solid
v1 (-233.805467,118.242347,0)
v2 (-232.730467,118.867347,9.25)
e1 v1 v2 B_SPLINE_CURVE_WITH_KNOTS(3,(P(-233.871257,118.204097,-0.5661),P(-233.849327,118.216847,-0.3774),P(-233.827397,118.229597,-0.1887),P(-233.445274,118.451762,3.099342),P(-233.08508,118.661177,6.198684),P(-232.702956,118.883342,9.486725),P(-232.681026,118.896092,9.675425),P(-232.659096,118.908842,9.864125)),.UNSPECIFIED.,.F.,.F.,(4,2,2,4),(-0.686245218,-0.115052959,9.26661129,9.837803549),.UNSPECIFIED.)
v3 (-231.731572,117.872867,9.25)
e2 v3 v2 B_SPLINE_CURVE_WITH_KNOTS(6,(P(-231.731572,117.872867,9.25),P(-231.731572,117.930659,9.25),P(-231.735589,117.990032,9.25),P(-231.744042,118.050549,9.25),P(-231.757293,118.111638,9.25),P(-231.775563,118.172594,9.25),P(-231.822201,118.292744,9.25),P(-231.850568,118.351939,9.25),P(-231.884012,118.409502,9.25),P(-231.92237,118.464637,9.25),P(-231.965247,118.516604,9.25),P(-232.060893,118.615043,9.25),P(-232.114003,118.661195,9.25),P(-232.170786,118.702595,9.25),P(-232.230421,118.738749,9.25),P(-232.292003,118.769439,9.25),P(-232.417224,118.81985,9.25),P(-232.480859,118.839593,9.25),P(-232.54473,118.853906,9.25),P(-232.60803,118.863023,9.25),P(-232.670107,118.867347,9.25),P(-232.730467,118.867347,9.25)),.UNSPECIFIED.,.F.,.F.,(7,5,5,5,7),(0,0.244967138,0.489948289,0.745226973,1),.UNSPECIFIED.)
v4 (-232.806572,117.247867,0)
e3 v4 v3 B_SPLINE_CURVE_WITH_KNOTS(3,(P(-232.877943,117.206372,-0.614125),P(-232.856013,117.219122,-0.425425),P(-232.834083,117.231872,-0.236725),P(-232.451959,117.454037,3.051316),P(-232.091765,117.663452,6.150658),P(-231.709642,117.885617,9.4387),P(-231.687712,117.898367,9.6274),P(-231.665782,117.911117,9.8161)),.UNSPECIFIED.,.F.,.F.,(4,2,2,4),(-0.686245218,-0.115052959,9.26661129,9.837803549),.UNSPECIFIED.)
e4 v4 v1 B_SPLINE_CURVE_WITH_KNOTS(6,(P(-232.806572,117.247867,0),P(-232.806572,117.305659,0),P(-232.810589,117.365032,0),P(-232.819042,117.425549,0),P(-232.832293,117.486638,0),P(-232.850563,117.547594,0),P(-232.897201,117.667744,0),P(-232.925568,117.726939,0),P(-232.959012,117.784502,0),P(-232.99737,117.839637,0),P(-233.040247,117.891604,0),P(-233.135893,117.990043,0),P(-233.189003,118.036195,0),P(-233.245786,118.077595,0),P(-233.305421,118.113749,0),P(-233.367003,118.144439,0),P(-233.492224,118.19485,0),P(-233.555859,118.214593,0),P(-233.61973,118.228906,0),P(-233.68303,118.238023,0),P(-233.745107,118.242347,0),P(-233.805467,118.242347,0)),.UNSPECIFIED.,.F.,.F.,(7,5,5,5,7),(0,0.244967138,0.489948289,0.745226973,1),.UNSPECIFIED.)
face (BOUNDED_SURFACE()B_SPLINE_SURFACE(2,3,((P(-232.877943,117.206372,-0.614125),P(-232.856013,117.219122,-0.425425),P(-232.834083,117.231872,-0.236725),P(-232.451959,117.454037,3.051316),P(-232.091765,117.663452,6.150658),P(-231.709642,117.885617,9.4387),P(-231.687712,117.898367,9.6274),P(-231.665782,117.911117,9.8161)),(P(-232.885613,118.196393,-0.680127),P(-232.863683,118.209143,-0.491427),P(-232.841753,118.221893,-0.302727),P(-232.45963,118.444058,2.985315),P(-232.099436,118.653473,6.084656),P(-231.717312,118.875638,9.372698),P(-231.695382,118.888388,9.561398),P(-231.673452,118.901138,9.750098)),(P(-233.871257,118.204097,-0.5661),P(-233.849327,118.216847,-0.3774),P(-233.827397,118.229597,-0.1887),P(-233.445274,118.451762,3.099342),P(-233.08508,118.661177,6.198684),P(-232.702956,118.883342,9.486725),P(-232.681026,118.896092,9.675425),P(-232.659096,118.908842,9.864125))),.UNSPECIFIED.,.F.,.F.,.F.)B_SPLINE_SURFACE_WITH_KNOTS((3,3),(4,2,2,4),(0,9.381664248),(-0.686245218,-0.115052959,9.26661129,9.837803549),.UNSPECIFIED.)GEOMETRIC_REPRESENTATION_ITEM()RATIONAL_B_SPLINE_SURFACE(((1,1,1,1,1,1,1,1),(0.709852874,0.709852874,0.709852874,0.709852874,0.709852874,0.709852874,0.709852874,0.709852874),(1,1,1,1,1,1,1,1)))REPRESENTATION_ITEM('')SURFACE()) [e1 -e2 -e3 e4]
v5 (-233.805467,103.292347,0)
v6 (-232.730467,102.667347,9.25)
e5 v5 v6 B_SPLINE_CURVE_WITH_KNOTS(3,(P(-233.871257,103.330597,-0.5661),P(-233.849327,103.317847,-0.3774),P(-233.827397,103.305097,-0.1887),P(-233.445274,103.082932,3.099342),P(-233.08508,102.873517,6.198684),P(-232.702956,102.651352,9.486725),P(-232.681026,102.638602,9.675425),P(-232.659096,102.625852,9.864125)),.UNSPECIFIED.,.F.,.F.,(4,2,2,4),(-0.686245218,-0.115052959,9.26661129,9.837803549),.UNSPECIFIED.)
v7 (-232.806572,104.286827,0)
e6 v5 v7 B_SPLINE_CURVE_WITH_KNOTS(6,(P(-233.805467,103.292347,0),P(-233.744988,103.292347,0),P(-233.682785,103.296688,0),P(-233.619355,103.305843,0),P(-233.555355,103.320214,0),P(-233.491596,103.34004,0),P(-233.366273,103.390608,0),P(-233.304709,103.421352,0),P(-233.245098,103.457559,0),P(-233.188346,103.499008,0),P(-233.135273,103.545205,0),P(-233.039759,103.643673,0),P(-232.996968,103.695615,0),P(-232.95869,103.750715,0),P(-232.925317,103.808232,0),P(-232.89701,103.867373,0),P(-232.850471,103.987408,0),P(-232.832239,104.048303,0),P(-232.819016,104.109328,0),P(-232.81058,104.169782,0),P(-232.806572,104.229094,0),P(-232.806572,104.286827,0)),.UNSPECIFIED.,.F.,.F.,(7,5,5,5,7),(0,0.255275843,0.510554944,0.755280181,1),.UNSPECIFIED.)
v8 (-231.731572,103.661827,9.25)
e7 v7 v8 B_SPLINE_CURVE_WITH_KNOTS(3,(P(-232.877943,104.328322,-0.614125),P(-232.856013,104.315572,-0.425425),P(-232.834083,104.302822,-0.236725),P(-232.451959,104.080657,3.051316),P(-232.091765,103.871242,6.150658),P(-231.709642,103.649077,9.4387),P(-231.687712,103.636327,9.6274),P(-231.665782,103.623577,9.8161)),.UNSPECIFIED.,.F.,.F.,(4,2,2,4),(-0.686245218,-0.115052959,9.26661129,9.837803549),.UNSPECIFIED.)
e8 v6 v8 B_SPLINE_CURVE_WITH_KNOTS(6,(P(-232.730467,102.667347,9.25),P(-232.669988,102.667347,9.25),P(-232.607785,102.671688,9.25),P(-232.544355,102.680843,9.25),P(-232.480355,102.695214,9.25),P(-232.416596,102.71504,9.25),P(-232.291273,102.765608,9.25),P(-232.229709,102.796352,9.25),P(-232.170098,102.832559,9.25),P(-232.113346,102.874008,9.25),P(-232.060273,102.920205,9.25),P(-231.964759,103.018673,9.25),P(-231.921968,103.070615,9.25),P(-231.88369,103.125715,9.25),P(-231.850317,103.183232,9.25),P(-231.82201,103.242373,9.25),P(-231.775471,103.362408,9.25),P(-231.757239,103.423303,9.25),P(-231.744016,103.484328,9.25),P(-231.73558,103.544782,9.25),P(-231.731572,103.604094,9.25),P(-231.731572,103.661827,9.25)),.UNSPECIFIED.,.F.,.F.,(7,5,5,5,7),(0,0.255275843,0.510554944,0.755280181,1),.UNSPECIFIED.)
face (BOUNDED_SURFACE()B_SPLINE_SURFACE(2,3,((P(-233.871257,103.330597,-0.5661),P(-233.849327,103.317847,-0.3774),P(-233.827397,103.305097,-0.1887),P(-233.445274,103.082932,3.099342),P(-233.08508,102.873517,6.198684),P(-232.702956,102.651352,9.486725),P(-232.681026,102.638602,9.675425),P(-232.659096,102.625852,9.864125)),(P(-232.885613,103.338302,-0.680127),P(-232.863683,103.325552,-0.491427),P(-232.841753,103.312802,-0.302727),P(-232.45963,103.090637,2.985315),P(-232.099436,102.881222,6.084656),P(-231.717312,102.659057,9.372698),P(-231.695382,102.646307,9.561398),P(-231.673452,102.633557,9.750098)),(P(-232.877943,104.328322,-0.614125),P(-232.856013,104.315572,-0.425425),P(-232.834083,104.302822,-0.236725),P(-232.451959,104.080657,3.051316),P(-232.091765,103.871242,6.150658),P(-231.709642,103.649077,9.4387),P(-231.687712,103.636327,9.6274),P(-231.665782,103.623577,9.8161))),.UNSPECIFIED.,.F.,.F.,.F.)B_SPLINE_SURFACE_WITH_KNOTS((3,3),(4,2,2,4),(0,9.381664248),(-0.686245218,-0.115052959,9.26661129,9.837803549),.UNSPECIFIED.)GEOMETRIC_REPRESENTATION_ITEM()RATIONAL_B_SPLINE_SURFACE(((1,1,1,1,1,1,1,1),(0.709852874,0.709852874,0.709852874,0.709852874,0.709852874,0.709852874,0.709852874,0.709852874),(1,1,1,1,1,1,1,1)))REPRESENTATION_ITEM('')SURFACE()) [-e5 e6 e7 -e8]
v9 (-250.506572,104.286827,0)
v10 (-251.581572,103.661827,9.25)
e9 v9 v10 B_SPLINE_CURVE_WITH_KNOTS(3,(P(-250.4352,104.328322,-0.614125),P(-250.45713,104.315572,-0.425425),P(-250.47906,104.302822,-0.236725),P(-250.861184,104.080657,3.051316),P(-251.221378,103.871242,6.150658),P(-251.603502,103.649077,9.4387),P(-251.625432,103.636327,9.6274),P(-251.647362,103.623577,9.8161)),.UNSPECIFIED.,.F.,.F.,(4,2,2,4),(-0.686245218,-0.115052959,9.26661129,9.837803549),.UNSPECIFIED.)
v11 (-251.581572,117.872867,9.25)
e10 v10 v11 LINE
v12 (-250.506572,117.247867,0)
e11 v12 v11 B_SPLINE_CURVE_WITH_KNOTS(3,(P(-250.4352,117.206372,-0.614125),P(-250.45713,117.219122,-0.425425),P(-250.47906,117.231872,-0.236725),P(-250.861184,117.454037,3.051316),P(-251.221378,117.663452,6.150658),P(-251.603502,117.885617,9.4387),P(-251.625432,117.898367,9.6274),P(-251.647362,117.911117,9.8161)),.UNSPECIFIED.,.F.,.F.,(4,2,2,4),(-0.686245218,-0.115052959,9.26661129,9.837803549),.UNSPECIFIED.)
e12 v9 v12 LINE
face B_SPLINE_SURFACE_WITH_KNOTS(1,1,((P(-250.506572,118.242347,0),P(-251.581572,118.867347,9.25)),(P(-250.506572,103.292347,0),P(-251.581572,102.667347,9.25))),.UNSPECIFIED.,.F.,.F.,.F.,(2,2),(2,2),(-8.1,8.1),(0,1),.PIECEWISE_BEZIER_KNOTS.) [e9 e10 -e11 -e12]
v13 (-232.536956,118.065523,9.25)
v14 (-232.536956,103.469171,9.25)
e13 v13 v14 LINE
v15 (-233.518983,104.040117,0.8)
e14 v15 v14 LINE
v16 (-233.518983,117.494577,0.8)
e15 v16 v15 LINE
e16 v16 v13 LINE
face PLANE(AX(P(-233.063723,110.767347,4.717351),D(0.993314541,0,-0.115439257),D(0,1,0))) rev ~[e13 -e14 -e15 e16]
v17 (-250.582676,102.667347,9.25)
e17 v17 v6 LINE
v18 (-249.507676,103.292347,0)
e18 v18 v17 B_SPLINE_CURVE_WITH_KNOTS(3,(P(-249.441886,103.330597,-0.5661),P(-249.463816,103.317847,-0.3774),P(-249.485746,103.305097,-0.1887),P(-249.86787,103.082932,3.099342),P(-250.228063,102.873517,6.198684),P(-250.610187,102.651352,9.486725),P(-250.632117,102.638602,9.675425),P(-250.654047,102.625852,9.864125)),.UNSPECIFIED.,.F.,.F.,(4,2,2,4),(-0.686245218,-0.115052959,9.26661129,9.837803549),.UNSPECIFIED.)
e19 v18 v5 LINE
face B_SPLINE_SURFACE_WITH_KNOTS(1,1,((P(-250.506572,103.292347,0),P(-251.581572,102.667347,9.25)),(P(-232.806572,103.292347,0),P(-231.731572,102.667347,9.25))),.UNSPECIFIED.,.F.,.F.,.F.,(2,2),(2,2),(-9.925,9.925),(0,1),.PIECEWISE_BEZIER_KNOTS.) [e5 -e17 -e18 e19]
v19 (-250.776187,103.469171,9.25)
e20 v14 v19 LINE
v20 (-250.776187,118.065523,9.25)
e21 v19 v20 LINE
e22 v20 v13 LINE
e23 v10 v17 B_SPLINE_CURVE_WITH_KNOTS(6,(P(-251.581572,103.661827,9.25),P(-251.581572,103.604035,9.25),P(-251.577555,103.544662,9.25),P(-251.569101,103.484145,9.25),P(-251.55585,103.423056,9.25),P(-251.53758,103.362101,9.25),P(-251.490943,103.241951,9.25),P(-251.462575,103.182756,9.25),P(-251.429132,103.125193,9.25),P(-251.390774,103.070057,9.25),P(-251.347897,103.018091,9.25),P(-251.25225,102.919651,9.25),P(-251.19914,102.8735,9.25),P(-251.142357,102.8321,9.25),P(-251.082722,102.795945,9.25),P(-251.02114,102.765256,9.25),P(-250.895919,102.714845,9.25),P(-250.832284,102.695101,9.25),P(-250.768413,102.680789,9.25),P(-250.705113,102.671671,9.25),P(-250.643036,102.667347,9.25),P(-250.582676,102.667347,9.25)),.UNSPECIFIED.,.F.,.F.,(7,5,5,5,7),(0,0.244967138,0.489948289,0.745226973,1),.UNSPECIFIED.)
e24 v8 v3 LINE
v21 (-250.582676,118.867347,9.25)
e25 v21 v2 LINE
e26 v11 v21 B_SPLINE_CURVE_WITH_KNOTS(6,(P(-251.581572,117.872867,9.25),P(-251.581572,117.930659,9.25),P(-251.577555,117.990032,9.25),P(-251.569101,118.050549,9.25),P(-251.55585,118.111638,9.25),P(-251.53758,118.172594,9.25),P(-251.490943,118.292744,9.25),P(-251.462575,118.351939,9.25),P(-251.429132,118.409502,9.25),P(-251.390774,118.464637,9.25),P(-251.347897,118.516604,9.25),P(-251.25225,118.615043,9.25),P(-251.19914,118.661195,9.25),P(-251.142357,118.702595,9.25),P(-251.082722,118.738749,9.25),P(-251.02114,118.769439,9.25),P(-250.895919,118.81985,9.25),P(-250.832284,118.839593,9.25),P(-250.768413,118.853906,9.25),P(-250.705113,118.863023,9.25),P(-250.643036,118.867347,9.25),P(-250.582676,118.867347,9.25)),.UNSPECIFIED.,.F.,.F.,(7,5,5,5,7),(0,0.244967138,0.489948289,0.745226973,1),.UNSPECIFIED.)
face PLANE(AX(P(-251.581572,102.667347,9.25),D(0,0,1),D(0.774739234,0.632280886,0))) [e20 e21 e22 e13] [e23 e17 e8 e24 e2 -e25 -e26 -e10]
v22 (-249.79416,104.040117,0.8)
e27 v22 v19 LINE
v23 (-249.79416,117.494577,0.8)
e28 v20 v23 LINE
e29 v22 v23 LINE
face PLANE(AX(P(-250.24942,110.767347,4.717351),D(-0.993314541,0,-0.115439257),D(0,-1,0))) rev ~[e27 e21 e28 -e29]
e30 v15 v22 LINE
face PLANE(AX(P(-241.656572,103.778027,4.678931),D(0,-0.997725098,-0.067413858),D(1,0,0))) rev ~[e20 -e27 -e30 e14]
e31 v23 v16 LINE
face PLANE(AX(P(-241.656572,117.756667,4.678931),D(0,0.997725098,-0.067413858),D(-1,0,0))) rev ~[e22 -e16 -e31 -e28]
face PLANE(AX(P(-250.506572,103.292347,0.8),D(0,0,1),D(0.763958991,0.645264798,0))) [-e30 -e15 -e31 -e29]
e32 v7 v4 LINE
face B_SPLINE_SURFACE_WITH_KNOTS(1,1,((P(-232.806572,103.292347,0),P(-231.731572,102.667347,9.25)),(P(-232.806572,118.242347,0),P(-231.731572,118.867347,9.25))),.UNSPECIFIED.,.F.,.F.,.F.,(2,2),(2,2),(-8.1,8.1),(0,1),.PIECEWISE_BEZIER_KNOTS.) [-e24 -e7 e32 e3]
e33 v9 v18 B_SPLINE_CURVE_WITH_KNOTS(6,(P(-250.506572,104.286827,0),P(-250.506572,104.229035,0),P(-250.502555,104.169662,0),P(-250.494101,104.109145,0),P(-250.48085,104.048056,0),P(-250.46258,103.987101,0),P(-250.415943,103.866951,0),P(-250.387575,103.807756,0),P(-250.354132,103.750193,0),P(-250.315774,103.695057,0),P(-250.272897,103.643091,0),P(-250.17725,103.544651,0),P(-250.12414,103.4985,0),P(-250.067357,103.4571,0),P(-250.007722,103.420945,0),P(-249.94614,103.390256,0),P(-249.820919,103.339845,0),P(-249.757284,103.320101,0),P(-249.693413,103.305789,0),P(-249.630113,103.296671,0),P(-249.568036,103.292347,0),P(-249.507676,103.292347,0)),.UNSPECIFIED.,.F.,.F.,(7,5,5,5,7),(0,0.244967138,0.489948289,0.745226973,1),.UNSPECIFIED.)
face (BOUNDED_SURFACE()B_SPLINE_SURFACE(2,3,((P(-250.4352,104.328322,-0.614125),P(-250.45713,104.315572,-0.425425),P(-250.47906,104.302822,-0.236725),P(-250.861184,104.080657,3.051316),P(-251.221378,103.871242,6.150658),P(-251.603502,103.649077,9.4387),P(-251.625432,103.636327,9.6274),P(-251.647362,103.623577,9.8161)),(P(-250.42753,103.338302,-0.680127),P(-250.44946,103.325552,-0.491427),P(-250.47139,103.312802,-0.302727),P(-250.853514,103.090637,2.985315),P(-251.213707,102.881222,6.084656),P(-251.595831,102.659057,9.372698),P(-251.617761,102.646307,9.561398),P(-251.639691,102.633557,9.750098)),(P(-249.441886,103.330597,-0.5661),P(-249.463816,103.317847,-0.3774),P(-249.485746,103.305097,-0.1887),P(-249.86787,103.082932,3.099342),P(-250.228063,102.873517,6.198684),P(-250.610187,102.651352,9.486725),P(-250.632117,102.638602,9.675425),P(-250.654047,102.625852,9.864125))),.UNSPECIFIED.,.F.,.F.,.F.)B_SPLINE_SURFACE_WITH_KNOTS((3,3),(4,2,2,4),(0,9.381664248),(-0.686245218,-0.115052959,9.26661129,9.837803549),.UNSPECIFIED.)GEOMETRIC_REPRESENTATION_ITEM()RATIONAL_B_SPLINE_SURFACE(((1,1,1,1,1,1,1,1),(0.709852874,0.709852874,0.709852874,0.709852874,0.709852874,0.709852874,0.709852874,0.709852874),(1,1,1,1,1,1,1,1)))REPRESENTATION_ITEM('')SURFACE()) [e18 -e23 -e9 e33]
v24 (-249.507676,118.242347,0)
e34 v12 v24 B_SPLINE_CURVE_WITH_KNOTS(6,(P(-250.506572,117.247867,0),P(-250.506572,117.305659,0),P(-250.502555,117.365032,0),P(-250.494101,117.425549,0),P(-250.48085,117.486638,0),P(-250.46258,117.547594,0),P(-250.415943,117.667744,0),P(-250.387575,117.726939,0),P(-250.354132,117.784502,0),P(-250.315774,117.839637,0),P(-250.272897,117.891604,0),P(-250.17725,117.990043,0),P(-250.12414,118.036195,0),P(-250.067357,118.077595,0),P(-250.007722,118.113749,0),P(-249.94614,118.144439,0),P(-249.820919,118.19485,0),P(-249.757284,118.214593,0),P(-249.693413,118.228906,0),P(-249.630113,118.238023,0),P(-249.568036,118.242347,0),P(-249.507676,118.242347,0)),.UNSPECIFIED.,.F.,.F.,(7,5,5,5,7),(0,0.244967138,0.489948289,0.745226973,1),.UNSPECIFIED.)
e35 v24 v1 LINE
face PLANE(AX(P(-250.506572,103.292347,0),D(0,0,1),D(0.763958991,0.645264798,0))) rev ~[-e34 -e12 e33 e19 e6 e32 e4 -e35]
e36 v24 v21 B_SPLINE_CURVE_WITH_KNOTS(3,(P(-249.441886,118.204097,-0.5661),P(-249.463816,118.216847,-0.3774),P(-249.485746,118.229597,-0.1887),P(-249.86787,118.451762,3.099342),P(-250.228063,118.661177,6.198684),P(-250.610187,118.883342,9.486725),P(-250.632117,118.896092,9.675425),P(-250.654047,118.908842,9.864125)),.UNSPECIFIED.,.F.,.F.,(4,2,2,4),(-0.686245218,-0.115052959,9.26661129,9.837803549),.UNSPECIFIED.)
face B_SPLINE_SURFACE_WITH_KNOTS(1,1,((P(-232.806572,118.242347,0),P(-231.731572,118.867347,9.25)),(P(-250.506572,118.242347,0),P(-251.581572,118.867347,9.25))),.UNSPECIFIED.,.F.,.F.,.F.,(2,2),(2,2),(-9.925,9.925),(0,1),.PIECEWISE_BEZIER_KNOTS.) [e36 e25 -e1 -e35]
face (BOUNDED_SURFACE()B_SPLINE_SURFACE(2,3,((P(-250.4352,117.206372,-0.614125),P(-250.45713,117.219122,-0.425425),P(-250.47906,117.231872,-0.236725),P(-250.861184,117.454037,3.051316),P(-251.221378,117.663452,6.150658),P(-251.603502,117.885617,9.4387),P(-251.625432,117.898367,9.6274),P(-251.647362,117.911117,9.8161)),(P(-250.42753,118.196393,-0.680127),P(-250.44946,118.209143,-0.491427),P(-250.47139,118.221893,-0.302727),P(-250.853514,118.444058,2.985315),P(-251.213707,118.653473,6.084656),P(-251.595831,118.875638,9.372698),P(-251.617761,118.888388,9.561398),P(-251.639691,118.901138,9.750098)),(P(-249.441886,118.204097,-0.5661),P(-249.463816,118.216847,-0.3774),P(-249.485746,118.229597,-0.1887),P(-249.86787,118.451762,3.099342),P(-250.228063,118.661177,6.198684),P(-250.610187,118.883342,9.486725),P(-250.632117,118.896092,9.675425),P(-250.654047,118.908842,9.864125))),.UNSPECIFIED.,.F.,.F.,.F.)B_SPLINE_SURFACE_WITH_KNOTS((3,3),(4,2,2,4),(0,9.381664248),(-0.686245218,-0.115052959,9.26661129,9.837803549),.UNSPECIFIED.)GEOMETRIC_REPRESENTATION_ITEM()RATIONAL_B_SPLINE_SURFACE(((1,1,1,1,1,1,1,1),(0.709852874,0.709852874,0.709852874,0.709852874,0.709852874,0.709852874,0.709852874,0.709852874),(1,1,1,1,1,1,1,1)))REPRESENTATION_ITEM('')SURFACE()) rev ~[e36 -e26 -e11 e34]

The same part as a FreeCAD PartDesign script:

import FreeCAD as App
import Part
import Sketcher
from FreeCAD import Vector
Q = App.Units.Quantity


def edges_at(feature, points):
    """Names of the edges that pass closest to the given points."""
    edges = feature.Shape.Edges
    near = lambda p: min(range(len(edges)), key=lambda i: edges[i].distToShape(Part.Vertex(*p))[0])
    return sorted({f"Edge{near(p) + 1}" for p in points})


def faces_at(feature, points):
    """Names of the faces that lie closest to the given points."""
    faces = feature.Shape.Faces
    near = lambda p: min(range(len(faces)), key=lambda i: faces[i].distToShape(Part.Vertex(*p))[0])
    return sorted({f"Face{near(p) + 1}" for p in points})


def add_polygon(sketch, points):
    """Adds a closed chain of lines whose ends are joined by coincident constraints."""
    first, n = sketch.GeometryCount, len(points)
    for a, b in zip(points, points[1:] + points[:1]):
        sketch.addGeometry(Part.LineSegment(App.Vector(*a, 0), App.Vector(*b, 0)), False)
    for i in range(n):
        sketch.addConstraint(Sketcher.Constraint("Coincident", first + i, 2, first + (i + 1) % n, 1))

doc = App.newDocument("Part")
body = doc.addObject("PartDesign::Body", "Body")

# Sketch on XY plane
sketch1 = body.newObject("Sketcher::SketchObject", "Sketch")
sketch1.AttachmentSupport = (doc.getObject("XY_Plane"), [""])
sketch1.MapMode = "FlatFace"
add_polygon(sketch1, [(-250.506572, 118.242347), (-250.506572, 103.292347), (-232.806572, 103.292347), (-232.806572, 118.242347)])  # lines 0-3
sketch1.addConstraint([
    Sketcher.Constraint("Vertical", 0),
    Sketcher.Constraint("Horizontal", 1),
    Sketcher.Constraint("Vertical", 2),
    Sketcher.Constraint("Horizontal", 3),
    Sketcher.Constraint("DistanceX", 1, 1, 1, 2, Q("17.7 mm")),
    Sketcher.Constraint("DistanceY", 0, 2, 0, 1, Q("14.95 mm")),
    Sketcher.Constraint("DistanceX", 0, 2, -1, 1, Q("250.506572 mm")),
    Sketcher.Constraint("DistanceY", -1, 1, 0, 2, Q("103.292347 mm")),
])

# Sketch on XY plane
sketch2 = body.newObject("Sketcher::SketchObject", "Sketch001")
sketch2.AttachmentSupport = (doc.getObject("XY_Plane"), [""])
sketch2.MapMode = "FlatFace"
sketch2.AttachmentOffset = App.Placement(Vector(0, 0, 9.25), App.Rotation())
add_polygon(sketch2, [(-251.581572, 118.867347), (-251.581572, 102.667347), (-231.731572, 102.667347), (-231.731572, 118.867347)])  # lines 0-3
sketch2.addConstraint([
    Sketcher.Constraint("Vertical", 0),
    Sketcher.Constraint("Horizontal", 1),
    Sketcher.Constraint("Vertical", 2),
    Sketcher.Constraint("Horizontal", 3),
    Sketcher.Constraint("DistanceY", 0, 2, 0, 1, Q("16.2 mm")),
    Sketcher.Constraint("DistanceX", 1, 1, 1, 2, Q("19.85 mm")),
    Sketcher.Constraint("DistanceX", 0, 2, -1, 1, Q("251.581572 mm")),
    Sketcher.Constraint("DistanceY", -1, 1, 0, 2, Q("102.667347 mm")),
])

additiveloft = body.newObject("PartDesign::AdditiveLoft", "AdditiveLoft")
additiveloft.Profile = sketch1
additiveloft.Sections = [sketch2]
doc.recompute()

thickness = body.newObject("PartDesign::Thickness", "Thickness")
thickness.Base = (additiveloft, faces_at(additiveloft, [(-241.657, 110.767, 9.25)]))
thickness.Value = 0.8
thickness.Reversed = True
thickness.Join = "Arc"
doc.recompute()

fillet = body.newObject("PartDesign::Fillet", "Fillet")
fillet.Base = (thickness, edges_at(thickness, [
    (-251.044, 102.98, 4.625),
    (-232.269, 102.98, 4.625),
    (-232.269, 118.555, 4.625),
    (-251.044, 118.555, 4.625),
]))
fillet.Radius = 1

doc.recompute()
